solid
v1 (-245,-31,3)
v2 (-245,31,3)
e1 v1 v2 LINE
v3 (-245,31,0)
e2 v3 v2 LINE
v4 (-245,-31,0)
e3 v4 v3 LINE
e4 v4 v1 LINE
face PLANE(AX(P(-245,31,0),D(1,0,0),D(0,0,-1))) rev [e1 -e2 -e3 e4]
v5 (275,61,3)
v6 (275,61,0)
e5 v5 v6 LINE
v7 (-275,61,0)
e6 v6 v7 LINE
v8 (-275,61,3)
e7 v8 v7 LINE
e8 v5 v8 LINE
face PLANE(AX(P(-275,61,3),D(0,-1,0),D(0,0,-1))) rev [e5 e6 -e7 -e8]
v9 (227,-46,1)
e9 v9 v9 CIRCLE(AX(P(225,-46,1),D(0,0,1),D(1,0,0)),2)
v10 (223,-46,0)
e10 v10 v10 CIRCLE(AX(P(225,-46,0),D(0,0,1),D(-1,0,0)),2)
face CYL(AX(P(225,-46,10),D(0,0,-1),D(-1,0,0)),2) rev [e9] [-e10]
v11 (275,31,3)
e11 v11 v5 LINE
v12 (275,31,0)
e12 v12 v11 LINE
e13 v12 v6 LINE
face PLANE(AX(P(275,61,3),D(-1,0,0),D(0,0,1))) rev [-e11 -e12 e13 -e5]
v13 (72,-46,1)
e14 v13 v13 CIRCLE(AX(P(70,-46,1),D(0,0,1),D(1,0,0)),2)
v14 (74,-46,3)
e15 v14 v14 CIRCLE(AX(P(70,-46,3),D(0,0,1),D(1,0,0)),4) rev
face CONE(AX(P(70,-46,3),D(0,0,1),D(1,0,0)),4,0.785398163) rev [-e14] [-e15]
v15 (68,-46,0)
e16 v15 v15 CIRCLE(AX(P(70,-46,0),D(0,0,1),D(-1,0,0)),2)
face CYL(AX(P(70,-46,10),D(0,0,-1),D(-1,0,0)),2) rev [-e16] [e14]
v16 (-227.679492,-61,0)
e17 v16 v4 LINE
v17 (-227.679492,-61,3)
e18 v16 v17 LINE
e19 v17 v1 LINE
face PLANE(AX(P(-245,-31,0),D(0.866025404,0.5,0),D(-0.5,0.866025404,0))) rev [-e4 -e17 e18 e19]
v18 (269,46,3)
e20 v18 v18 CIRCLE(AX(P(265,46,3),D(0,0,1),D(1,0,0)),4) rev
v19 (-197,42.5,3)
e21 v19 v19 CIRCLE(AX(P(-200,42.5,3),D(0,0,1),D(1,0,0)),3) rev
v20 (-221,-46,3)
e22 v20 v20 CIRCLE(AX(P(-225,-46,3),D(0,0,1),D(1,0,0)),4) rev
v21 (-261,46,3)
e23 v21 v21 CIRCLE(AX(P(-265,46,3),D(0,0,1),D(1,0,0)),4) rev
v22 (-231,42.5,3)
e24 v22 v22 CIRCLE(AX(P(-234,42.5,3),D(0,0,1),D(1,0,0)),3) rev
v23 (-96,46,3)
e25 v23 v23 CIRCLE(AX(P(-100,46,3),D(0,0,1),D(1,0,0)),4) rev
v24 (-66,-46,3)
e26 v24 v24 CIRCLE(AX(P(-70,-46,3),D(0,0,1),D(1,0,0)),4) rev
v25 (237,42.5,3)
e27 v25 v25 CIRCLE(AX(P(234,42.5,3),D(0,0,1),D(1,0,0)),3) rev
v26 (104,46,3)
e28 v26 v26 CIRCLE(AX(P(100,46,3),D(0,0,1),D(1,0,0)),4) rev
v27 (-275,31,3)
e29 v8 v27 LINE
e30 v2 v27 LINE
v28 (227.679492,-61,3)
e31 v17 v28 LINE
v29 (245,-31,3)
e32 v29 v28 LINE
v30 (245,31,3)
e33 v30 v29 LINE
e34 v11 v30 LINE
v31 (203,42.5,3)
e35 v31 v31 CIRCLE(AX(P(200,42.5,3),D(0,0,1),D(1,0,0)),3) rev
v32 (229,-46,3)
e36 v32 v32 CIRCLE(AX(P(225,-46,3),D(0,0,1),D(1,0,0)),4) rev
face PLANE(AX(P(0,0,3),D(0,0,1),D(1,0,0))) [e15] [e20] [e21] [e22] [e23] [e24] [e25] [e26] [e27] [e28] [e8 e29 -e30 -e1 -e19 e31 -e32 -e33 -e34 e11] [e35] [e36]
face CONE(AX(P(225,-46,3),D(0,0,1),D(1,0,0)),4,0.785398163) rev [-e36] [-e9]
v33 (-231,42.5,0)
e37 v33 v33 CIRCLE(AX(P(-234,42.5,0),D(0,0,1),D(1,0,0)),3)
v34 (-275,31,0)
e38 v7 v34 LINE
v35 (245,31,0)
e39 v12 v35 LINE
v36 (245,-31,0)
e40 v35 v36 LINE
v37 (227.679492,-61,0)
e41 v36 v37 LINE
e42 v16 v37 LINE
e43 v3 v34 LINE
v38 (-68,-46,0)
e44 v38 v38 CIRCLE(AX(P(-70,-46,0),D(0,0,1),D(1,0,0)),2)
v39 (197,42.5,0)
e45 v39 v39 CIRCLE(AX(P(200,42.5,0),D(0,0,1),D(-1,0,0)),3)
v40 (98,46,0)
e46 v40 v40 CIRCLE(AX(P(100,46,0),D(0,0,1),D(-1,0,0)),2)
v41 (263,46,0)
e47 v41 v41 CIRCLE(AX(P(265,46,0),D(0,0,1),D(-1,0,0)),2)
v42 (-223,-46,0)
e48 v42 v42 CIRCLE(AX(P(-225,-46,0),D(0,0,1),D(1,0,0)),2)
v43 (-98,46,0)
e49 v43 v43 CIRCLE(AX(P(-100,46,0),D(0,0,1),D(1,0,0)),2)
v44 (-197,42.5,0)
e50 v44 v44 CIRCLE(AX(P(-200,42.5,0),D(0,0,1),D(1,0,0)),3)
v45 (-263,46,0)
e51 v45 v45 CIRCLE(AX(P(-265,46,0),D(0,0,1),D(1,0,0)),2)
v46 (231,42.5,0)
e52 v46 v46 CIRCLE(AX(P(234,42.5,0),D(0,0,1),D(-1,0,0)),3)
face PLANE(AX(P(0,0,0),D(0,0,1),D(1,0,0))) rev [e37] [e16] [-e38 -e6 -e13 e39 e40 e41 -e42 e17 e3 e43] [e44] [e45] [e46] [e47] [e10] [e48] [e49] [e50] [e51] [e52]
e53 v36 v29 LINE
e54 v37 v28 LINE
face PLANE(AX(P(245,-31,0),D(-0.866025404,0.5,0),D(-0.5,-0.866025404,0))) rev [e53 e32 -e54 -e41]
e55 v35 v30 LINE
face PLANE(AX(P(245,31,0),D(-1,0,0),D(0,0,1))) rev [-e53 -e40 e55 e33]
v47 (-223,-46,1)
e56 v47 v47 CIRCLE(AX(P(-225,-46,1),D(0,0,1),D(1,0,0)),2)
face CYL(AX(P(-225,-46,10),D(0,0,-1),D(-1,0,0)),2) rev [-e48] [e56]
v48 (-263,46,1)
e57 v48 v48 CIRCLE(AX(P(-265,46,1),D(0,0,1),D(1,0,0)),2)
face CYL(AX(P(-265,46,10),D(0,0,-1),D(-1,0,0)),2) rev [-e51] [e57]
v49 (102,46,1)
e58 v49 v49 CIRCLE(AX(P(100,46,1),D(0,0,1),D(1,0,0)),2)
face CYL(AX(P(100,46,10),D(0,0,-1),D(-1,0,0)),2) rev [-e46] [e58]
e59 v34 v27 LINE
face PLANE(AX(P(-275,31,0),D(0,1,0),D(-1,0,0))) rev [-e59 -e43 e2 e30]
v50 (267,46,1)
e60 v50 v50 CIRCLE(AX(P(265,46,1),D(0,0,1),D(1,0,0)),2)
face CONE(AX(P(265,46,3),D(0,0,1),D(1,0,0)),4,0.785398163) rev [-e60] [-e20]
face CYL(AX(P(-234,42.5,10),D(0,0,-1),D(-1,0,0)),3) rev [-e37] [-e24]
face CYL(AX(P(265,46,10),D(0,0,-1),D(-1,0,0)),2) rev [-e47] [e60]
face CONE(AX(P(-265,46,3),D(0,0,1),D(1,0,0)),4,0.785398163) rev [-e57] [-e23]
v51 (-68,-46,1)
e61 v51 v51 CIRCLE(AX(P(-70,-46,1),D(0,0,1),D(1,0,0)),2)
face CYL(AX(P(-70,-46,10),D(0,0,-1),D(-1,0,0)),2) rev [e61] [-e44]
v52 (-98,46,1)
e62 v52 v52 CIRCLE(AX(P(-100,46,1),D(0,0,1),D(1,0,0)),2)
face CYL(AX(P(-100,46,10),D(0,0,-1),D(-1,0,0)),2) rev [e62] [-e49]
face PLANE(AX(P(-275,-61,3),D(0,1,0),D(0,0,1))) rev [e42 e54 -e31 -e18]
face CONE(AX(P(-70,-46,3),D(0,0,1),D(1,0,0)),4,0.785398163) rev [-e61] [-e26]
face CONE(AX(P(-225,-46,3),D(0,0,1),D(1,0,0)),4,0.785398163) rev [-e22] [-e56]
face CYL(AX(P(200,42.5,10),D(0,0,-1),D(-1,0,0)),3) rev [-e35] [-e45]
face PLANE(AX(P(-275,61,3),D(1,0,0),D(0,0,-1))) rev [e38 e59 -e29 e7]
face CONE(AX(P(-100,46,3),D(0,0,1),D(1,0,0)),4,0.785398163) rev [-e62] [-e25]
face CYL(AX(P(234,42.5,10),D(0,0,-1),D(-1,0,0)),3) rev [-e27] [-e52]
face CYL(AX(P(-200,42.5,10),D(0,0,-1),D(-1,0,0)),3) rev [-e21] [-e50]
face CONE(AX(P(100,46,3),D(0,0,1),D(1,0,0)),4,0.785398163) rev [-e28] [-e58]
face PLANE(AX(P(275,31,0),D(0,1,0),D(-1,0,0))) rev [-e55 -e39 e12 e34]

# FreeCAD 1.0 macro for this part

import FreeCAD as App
import Part
import Sketcher

V = App.Vector
Q = App.Units.Quantity


def edges_at(feature, points):
    """Names of the edges that pass closest to the given points."""
    edges = feature.Shape.Edges
    near = lambda p: min(range(len(edges)), key=lambda i: edges[i].distToShape(Part.Vertex(*p))[0])
    return sorted({f"Edge{near(p) + 1}" for p in points})

doc = App.newDocument("Part")
body = doc.addObject("PartDesign::Body", "Body")

sketch1 = body.newObject("Sketcher::SketchObject", "Sketch")
sketch1.AttachmentSupport = (doc.getObject("XY_Plane"), [""])
sketch1.MapMode = "FlatFace"
sketch1.addGeometry([
    Part.LineSegment(V(-275, 61, 0), V(-275, -61, 0)),
    Part.LineSegment(V(-275, -61, 0), V(275, -61, 0)),
    Part.LineSegment(V(275, -61, 0), V(275, 61, 0)),
    Part.LineSegment(V(275, 61, 0), V(-275, 61, 0)),
], False)
sketch1.addConstraint([
    Sketcher.Constraint("Coincident", 0, 2, 1, 1),
    Sketcher.Constraint("Coincident", 1, 2, 2, 1),
    Sketcher.Constraint("Coincident", 2, 2, 3, 1),
    Sketcher.Constraint("Coincident", 3, 2, 0, 1),
    Sketcher.Constraint("Vertical", 0),
    Sketcher.Constraint("Horizontal", 1),
    Sketcher.Constraint("Vertical", 2),
    Sketcher.Constraint("Horizontal", 3),
    Sketcher.Constraint("Symmetric", 0, 2, 2, 2, -1, 1),
    Sketcher.Constraint("DistanceX", 1, 1, 1, 2, 550.0),
    Sketcher.Constraint("DistanceY", 0, 2, 0, 1, 122.0),
])
pad1 = body.newObject("PartDesign::Pad", "Pad")
pad1.Profile = sketch1
pad1.Length = 3

sketch2 = body.newObject("Sketcher::SketchObject", "Sketch001")
sketch2.AttachmentSupport = (doc.getObject("XY_Plane"), [""])
sketch2.MapMode = "FlatFace"
sketch2.AttachmentOffset = App.Placement(V(0, 0, 3), App.Rotation())
sketch2.addGeometry([
    Part.LineSegment(V(-245, 31, 0), V(-275, 31, 0)),
    Part.LineSegment(V(-275, 31, 0), V(-275, -61, 0)),
    Part.LineSegment(V(-275, -61, 0), V(-228, -61, 0)),
    Part.LineSegment(V(-228, -61, 0), V(-245, -31, 0)),
    Part.LineSegment(V(-245, -31, 0), V(-245, 31, 0)),
    Part.LineSegment(V(245, -31, 0), V(228, -61, 0)),
    Part.LineSegment(V(228, -61, 0), V(275, -61, 0)),
    Part.LineSegment(V(275, -61, 0), V(275, 31, 0)),
    Part.LineSegment(V(275, 31, 0), V(245, 31, 0)),
    Part.LineSegment(V(245, 31, 0), V(245, -31, 0)),
], False)
sketch2.addConstraint([
    Sketcher.Constraint("Coincident", 0, 2, 1, 1),
    Sketcher.Constraint("Coincident", 1, 2, 2, 1),
    Sketcher.Constraint("Coincident", 2, 2, 3, 1),
    Sketcher.Constraint("Coincident", 3, 2, 4, 1),
    Sketcher.Constraint("Coincident", 4, 2, 0, 1),
    Sketcher.Constraint("Coincident", 5, 2, 6, 1),
    Sketcher.Constraint("Coincident", 6, 2, 7, 1),
    Sketcher.Constraint("Coincident", 7, 2, 8, 1),
    Sketcher.Constraint("Coincident", 8, 2, 9, 1),
    Sketcher.Constraint("Coincident", 9, 2, 5, 1),
    Sketcher.Constraint("Horizontal", 0),
    Sketcher.Constraint("Vertical", 1),
    Sketcher.Constraint("Horizontal", 2),
    Sketcher.Constraint("Vertical", 4),
    Sketcher.Constraint("Horizontal", 6),
    Sketcher.Constraint("Vertical", 7),
    Sketcher.Constraint("Horizontal", 8),
    Sketcher.Constraint("Vertical", 9),
    Sketcher.Constraint("Symmetric", 3, 2, 8, 2, -1, 1),
    Sketcher.Constraint("Symmetric", 2, 2, 5, 2, -2),
    Sketcher.Constraint("Symmetric", 0, 2, 7, 2, -2),
    Sketcher.Constraint("Horizontal", 3, 2, 9, 2),
    Sketcher.Constraint("DistanceX", 0, 2, 0, 1, 30.0),
    Sketcher.Constraint("DistanceY", 1, 2, 1, 1, 92.0),
    Sketcher.Constraint("DistanceY", 4, 1, 4, 2, 62.0),
    Sketcher.Constraint("Angle", 3, Q("120 deg")),
    Sketcher.Constraint("DistanceX", 0, 2, -1, 1, 275.0),
])
pocket1 = body.newObject("PartDesign::Pocket", "Pocket")
pocket1.Profile = sketch2
pocket1.Type = "ThroughAll"

sketch3 = body.newObject("Sketcher::SketchObject", "Sketch002")
sketch3.AttachmentSupport = (doc.getObject("XY_Plane"), [""])
sketch3.MapMode = "FlatFace"
sketch3.addGeometry([
    Part.Circle(V(-200, 42.5, 0), V(0, 0, 1), 3),
    Part.Circle(V(-234, 42.5, 0), V(0, 0, 1), 3),
    Part.Circle(V(234, 42.5, 0), V(0, 0, 1), 3),
    Part.Circle(V(200, 42.5, 0), V(0, 0, 1), 3),
    Part.Circle(V(-265, 46, 0), V(0, 0, 1), 2),
    Part.Circle(V(-100, 46, 0), V(0, 0, 1), 2),
    Part.Circle(V(-225, -46, 0), V(0, 0, 1), 2),
    Part.Circle(V(-70, -46, 0), V(0, 0, 1), 2),
    Part.Circle(V(225, -46, 0), V(0, 0, 1), 2),
    Part.Circle(V(70, -46, 0), V(0, 0, 1), 2),
    Part.Circle(V(100, 46, 0), V(0, 0, 1), 2),
    Part.Circle(V(265, 46, 0), V(0, 0, 1), 2),
], False)
sketch3.addConstraint([
    Sketcher.Constraint("Equal", 0, 1),
    Sketcher.Constraint("Equal", 1, 2),
    Sketcher.Constraint("Equal", 2, 3),
    Sketcher.Constraint("Equal", 4, 5),
    Sketcher.Constraint("Equal", 5, 6),
    Sketcher.Constraint("Equal", 6, 7),
    Sketcher.Constraint("Equal", 7, 8),
    Sketcher.Constraint("Equal", 8, 9),
    Sketcher.Constraint("Equal", 9, 10),
    Sketcher.Constraint("Equal", 10, 11),
    Sketcher.Constraint("Symmetric", 1, 3, 2, 3, -2),
    Sketcher.Constraint("Symmetric", 0, 3, 3, 3, -2),
    Sketcher.Constraint("Symmetric", 6, 3, 8, 3, -2),
    Sketcher.Constraint("Symmetric", 7, 3, 9, 3, -2),
    Sketcher.Constraint("Symmetric", 5, 3, 10, 3, -2),
    Sketcher.Constraint("Symmetric", 4, 3, 11, 3, -2),
    Sketcher.Constraint("Horizontal", 0, 3, 1, 3),
    Sketcher.Constraint("Horizontal", 4, 3, 5, 3),
    Sketcher.Constraint("Horizontal", 6, 3, 7, 3),
    Sketcher.Constraint("Diameter", 0, 6.0),
    Sketcher.Constraint("Diameter", 4, 4.0),
    Sketcher.Constraint("DistanceX", 0, 3, -1, 1, 200.0),
    Sketcher.Constraint("DistanceX", 1, 3, -1, 1, 234.0),
    Sketcher.Constraint("DistanceX", 4, 3, -1, 1, 265.0),
    Sketcher.Constraint("DistanceY", -1, 1, 4, 3, 46.0),
    Sketcher.Constraint("DistanceX", 5, 3, -1, 1, 100.0),
    Sketcher.Constraint("DistanceX", 6, 3, -1, 1, 225.0),
    Sketcher.Constraint("DistanceY", 6, 3, -1, 1, 46.0),
    Sketcher.Constraint("DistanceX", 7, 3, -1, 1, 70.0),
    Sketcher.Constraint("DistanceY", -1, 1, 0, 3, 42.5),
])
pocket2 = body.newObject("PartDesign::Pocket", "Pocket001")
pocket2.Profile = sketch3
pocket2.Length = 10
pocket2.Reversed = True
doc.recompute()

chamfer = body.newObject("PartDesign::Chamfer", "Chamfer")
chamfer.Base = (pocket2, edges_at(pocket2, [
    (227, -46, 3),
    (-72, -46, 3),
    (-227, -46, 3),
    (-102, 46, 3),
    (-267, 46, 3),
    (72, -46, 3),
    (102, 46, 3),
    (267, 46, 3),
]))
chamfer.Size = 2

doc.recompute()
